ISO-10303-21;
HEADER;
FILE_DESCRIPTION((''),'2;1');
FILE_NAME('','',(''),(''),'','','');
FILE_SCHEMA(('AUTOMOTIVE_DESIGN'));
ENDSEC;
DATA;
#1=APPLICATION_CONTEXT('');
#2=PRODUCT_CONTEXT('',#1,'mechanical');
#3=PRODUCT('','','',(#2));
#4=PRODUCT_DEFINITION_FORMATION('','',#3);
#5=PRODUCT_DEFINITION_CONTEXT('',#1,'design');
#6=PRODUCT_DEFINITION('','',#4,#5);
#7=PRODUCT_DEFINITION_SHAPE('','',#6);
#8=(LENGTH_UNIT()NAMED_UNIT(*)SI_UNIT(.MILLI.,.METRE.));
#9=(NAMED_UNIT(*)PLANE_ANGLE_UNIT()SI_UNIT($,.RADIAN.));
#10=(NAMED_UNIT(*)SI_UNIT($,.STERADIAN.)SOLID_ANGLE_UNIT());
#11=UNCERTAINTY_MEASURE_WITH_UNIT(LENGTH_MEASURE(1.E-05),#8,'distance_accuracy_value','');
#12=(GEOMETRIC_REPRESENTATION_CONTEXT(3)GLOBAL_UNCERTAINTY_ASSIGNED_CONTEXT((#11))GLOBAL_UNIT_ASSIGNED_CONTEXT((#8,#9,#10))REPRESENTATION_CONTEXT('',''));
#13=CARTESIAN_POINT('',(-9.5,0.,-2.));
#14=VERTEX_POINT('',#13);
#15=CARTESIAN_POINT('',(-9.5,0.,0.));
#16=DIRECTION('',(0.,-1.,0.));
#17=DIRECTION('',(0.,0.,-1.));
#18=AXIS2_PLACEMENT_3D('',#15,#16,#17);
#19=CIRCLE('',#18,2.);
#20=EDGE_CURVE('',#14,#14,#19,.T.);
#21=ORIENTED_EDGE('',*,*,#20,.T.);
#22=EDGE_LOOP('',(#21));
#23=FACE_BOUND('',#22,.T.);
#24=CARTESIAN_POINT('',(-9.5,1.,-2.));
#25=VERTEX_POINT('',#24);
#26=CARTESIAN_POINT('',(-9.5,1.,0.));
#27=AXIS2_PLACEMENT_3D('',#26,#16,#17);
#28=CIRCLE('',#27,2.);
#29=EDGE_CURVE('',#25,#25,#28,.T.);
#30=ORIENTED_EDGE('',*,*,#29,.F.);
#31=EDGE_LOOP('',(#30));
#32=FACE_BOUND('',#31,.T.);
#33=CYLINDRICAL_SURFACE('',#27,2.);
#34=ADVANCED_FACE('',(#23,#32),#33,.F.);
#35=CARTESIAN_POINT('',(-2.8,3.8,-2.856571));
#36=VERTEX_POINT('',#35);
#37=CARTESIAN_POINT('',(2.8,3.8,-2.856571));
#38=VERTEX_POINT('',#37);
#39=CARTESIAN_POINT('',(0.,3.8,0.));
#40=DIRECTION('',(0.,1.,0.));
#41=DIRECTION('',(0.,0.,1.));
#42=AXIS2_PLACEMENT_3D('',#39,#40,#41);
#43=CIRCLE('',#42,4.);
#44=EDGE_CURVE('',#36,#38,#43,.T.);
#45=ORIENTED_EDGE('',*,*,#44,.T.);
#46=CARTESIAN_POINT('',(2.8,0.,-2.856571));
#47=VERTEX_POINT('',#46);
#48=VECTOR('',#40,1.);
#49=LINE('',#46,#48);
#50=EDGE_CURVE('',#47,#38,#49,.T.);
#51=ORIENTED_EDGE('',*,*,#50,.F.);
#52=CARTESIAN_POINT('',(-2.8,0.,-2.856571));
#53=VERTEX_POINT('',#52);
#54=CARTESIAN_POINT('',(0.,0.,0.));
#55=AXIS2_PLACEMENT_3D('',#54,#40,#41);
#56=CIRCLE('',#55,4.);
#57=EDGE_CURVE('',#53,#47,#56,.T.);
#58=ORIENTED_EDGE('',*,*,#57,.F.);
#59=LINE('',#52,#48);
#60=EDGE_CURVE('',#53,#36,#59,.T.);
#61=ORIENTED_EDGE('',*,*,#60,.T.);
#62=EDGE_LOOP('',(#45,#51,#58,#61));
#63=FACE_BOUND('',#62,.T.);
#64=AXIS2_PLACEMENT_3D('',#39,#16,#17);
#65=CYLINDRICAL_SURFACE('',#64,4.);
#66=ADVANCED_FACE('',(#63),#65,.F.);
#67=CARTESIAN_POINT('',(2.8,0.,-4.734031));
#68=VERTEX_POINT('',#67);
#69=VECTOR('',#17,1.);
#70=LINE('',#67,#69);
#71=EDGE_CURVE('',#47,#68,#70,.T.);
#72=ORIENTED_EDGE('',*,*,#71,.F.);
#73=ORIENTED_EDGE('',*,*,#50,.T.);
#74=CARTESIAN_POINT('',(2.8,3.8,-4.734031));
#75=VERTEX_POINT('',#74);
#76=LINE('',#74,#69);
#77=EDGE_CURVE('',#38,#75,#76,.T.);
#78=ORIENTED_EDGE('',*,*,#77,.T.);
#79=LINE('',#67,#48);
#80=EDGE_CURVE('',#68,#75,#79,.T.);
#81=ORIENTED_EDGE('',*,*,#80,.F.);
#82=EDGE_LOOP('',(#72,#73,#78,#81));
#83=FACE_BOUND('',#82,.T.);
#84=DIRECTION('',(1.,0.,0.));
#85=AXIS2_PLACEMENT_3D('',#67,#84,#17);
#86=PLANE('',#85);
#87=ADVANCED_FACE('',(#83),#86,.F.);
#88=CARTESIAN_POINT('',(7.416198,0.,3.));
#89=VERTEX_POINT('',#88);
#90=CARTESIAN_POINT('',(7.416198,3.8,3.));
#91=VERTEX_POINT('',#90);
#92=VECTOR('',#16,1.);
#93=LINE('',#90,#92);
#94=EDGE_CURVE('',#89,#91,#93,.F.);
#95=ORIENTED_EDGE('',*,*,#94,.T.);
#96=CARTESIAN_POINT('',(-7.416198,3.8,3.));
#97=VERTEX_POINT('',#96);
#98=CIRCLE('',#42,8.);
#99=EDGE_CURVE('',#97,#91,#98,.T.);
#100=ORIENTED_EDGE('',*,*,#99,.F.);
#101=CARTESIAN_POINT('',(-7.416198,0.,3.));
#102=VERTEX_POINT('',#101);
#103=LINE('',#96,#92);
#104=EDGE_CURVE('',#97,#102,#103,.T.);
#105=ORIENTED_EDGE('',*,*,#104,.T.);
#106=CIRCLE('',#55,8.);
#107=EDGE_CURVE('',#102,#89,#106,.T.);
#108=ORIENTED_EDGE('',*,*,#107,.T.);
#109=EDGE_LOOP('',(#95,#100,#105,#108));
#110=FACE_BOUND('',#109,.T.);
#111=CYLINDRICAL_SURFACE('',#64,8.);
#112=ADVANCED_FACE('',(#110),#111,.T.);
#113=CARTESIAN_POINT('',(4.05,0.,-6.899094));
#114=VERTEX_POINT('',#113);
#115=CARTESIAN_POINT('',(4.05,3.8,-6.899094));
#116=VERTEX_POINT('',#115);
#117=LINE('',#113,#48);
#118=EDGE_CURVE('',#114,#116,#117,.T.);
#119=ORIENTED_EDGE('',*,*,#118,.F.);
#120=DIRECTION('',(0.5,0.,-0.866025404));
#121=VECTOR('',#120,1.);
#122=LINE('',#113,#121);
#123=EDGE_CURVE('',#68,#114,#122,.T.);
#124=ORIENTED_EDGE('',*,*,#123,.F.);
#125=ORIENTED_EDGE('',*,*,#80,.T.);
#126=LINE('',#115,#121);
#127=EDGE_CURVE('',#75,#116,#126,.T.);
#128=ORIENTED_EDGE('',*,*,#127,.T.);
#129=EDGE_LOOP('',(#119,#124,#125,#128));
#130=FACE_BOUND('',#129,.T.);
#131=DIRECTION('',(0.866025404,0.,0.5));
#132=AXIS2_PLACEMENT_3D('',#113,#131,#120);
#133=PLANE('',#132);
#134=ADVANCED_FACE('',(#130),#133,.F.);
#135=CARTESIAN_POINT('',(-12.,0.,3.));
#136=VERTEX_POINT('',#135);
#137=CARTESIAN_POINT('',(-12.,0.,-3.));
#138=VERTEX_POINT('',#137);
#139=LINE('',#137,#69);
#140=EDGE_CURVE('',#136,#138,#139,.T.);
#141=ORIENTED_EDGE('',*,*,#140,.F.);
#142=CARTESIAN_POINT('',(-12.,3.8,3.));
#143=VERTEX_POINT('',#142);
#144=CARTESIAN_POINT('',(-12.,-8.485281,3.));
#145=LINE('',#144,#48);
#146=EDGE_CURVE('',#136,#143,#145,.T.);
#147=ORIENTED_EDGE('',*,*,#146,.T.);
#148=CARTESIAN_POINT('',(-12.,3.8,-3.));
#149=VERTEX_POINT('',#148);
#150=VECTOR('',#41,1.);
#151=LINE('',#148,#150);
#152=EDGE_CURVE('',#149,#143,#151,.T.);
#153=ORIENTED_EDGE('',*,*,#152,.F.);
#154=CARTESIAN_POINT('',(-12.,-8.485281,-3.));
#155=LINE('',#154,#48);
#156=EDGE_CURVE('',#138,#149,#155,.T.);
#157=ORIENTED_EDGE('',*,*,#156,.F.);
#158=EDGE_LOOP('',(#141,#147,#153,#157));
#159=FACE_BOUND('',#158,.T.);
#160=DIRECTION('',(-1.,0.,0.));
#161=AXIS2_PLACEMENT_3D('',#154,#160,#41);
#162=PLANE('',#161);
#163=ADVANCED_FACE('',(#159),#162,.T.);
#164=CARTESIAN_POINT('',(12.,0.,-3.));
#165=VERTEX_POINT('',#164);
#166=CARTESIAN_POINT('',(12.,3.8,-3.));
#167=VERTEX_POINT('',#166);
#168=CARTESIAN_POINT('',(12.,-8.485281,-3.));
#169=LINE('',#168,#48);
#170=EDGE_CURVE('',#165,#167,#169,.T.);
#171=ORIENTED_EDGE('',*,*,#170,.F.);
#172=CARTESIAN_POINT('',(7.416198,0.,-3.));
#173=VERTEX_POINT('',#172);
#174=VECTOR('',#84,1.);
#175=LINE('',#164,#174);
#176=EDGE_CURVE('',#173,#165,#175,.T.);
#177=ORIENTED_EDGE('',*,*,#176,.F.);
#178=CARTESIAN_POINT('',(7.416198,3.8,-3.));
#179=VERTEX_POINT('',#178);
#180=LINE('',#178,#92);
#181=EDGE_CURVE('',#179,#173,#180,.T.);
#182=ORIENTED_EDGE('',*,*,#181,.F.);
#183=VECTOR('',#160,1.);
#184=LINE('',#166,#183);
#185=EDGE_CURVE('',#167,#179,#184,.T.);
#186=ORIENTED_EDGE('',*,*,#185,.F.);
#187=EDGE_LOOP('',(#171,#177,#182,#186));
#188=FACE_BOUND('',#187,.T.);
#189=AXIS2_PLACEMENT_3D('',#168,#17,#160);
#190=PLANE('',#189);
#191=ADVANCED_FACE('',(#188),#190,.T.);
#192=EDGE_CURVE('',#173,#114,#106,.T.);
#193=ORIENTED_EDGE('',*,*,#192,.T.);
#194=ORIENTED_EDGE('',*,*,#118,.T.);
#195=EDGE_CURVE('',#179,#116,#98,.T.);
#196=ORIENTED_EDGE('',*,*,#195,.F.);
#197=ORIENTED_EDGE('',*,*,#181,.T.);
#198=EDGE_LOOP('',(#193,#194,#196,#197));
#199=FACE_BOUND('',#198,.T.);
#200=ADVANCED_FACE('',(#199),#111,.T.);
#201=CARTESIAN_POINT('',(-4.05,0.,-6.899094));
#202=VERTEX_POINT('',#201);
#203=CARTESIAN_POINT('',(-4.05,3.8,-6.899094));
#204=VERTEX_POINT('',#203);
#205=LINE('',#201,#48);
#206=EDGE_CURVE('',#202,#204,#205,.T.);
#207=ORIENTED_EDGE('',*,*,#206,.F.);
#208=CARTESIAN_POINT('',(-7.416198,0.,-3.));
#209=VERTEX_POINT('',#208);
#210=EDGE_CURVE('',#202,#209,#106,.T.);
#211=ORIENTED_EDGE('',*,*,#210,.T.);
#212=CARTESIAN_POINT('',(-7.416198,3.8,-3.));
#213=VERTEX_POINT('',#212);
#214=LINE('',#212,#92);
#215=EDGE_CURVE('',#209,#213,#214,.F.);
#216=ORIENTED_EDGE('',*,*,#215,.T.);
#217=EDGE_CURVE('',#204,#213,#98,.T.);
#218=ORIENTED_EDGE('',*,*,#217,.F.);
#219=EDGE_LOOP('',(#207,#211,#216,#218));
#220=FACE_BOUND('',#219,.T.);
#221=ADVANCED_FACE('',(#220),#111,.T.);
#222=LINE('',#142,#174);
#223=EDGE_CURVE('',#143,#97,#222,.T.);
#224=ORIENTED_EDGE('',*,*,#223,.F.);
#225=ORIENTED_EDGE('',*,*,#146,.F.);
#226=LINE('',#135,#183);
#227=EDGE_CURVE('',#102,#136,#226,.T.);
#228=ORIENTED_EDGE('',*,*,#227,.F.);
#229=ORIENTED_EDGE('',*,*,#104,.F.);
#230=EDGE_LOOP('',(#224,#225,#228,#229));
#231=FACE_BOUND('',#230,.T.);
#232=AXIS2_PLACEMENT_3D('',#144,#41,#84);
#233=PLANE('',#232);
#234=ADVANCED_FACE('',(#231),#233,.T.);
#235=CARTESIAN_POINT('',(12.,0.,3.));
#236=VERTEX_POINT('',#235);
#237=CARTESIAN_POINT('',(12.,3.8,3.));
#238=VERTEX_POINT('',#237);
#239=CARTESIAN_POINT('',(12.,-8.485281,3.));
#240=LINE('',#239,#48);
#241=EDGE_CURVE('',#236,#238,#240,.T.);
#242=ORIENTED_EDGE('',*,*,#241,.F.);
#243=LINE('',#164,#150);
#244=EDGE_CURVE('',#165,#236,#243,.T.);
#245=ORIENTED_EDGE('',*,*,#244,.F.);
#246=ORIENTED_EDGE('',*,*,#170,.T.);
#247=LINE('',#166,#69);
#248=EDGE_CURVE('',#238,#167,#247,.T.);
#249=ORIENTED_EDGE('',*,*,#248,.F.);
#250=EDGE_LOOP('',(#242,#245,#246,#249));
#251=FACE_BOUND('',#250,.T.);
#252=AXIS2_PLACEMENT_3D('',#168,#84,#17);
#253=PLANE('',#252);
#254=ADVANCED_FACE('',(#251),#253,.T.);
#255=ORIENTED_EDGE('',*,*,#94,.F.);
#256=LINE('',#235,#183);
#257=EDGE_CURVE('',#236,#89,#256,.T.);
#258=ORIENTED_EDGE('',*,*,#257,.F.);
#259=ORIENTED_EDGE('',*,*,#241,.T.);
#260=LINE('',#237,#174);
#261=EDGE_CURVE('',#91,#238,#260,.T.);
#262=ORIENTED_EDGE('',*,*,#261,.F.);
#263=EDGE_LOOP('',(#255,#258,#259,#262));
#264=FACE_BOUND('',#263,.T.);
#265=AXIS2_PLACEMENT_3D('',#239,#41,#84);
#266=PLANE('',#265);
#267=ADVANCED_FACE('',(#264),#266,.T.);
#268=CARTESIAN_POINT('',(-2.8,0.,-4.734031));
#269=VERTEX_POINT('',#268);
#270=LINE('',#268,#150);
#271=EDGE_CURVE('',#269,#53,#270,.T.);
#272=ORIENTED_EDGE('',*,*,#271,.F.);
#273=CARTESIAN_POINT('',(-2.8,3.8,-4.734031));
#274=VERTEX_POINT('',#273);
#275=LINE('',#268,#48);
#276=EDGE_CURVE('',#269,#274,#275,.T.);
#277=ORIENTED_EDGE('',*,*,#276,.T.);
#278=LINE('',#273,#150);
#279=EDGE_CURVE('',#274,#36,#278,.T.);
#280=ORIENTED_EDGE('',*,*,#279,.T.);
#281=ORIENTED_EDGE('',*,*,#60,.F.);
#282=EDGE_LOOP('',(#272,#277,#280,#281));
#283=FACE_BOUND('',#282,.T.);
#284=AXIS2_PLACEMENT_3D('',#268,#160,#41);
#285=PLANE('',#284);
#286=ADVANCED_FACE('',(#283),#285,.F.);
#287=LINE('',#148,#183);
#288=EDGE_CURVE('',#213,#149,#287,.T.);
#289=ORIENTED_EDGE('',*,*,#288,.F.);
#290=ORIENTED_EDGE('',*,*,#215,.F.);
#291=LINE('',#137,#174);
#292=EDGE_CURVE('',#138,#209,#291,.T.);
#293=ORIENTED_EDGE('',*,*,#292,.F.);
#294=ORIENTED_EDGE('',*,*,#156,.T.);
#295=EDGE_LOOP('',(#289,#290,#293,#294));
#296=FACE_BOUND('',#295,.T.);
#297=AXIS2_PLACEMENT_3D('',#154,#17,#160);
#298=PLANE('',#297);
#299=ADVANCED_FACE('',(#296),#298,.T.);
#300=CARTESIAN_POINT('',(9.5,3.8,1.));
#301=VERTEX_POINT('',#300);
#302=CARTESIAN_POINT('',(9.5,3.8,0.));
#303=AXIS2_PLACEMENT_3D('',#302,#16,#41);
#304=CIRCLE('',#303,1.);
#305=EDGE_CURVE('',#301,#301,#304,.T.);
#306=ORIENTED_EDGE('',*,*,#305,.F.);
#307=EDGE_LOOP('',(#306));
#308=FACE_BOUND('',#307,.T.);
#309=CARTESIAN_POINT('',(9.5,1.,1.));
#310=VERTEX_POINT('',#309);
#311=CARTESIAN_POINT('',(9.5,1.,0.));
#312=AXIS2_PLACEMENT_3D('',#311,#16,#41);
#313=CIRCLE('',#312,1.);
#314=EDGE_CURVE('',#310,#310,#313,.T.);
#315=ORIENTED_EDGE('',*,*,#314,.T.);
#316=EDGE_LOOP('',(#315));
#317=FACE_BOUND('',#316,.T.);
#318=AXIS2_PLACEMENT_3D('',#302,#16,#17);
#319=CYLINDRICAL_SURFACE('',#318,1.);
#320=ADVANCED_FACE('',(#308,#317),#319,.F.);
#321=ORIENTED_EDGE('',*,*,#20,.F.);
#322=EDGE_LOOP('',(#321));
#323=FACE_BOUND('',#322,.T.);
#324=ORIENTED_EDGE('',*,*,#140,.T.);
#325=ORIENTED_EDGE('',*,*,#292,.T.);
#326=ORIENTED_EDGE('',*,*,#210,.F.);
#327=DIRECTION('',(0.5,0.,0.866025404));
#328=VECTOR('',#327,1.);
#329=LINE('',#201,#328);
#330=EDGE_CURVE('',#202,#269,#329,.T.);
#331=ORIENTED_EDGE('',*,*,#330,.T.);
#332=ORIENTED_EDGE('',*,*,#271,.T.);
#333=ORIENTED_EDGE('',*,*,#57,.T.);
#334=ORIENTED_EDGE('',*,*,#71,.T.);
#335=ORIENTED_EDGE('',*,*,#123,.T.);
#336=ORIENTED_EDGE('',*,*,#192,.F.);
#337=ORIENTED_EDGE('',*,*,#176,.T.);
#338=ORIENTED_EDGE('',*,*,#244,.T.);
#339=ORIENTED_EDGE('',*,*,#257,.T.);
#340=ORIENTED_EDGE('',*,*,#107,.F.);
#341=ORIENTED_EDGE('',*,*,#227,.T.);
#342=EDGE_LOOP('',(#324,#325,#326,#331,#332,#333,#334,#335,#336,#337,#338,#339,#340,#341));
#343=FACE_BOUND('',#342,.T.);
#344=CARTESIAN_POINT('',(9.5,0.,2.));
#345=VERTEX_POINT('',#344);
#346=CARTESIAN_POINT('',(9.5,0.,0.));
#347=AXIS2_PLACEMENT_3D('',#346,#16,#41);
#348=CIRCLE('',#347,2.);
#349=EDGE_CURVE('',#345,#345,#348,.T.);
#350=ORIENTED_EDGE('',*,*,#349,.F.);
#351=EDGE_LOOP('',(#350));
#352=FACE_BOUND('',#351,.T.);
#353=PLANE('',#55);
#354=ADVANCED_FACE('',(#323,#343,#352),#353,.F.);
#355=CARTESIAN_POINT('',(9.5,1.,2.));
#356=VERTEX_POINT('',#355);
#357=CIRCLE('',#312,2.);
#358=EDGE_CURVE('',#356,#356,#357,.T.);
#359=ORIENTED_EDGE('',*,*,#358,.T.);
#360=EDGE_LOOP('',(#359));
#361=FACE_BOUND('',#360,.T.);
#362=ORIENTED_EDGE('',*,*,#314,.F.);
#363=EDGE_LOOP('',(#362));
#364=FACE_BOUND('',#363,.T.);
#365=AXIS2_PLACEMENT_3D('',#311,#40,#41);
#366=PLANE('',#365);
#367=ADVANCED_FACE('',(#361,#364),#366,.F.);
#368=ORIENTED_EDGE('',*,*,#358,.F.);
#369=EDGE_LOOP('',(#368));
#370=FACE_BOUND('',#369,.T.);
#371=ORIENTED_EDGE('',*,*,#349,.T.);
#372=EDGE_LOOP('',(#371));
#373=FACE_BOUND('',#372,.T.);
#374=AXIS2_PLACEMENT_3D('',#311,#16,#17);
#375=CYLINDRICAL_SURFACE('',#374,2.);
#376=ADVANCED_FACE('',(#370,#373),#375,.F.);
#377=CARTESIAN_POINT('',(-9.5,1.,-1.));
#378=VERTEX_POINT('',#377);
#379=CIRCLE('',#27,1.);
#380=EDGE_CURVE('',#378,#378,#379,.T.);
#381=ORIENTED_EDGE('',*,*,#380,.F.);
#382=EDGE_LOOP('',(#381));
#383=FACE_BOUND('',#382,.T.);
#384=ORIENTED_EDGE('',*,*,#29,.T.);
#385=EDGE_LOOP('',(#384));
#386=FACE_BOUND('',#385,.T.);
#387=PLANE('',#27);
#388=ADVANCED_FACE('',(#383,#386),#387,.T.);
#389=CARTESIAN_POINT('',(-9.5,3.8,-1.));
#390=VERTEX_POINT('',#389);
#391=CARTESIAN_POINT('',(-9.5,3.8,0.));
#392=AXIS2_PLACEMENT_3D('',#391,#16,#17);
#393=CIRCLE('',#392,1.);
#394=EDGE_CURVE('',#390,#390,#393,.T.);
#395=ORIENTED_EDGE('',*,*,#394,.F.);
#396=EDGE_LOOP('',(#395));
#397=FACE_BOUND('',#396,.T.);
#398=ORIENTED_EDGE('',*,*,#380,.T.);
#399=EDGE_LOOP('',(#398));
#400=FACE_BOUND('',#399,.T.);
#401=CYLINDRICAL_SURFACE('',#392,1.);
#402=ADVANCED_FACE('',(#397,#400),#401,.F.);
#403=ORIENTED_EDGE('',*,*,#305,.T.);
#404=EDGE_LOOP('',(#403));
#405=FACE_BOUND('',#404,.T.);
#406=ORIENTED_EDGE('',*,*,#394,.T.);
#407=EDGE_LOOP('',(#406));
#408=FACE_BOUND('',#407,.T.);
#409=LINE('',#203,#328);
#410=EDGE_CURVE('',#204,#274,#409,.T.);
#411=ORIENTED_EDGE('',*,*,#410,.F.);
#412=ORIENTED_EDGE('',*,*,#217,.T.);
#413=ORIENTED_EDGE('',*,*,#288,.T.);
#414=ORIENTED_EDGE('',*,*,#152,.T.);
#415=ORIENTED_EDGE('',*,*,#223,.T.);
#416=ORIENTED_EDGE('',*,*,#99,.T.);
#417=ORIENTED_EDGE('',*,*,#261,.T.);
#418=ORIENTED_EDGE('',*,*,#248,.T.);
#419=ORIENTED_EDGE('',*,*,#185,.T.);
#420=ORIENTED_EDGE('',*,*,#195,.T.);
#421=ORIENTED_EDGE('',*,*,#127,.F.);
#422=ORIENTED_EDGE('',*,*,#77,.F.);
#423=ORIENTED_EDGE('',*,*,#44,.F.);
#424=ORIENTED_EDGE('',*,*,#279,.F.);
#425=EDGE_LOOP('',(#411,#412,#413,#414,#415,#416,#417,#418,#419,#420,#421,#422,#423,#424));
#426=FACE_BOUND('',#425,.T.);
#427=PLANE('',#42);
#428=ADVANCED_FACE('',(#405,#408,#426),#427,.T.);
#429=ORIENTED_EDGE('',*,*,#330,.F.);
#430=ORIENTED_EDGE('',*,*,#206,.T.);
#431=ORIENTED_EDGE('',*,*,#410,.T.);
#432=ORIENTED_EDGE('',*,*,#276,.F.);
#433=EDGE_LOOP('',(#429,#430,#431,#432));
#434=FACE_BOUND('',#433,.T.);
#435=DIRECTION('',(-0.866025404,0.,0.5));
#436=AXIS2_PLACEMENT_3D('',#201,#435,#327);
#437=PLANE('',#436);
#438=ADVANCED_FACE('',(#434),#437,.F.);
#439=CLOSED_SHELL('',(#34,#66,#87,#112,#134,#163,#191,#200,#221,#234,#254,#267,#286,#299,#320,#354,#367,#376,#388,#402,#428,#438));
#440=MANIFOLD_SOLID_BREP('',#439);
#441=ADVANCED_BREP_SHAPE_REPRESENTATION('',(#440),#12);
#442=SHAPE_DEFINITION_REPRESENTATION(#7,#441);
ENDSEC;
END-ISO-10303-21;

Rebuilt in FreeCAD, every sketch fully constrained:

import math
import FreeCAD as App
import Part
import Sketcher
from FreeCAD import Vector
Q = App.Units.Quantity


def add_polygon(sketch, points):
    """Adds a closed chain of lines whose ends are joined by coincident constraints."""
    first, n = sketch.GeometryCount, len(points)
    for a, b in zip(points, points[1:] + points[:1]):
        sketch.addGeometry(Part.LineSegment(App.Vector(*a, 0), App.Vector(*b, 0)), False)
    for i in range(n):
        sketch.addConstraint(Sketcher.Constraint("Coincident", first + i, 2, first + (i + 1) % n, 1))

doc = App.newDocument("Part")
body = doc.addObject("PartDesign::Body", "Body")

sketch1 = doc.addObject("Sketcher::SketchObject", "Sketch")
body.addObject(sketch1)
sketch1.AttachmentSupport = (doc.XZ_Plane, [""])
sketch1.MapMode = "FlatFace"
sketch1.addGeometry(Part.Circle(Vector(0, 0, 0), Vector(0, 0, 1), 8), False)
sketch1.addGeometry(Part.Circle(Vector(0, 0, 0), Vector(0, 0, 1), 4), False)
sketch1.addConstraint(Sketcher.Constraint("Coincident", 0, 3, -1, 1))
sketch1.addConstraint(Sketcher.Constraint("Coincident", 1, 3, -1, 1))
sketch1.addConstraint(Sketcher.Constraint("Diameter", 0, 16.0))
sketch1.addConstraint(Sketcher.Constraint("Diameter", 1, 8.0))
pad1 = doc.addObject("PartDesign::Pad", "Pad")
body.addObject(pad1)
pad1.Profile = sketch1
pad1.Length = 3.8
pad1.Reversed = True

sketch2 = doc.addObject("Sketcher::SketchObject", "Sketch001")
body.addObject(sketch2)
sketch2.AttachmentSupport = (doc.XZ_Plane, [""])
sketch2.MapMode = "FlatFace"
sketch2.AttachmentOffset = App.Placement(Vector(0, 0, -3.8), App.Rotation())
add_polygon(sketch2, [(-12, -3), (-12, 3), (-6, 3), (-6, -3)])
add_polygon(sketch2, [(6, -3), (6, 3), (12, 3), (12, -3)])
sketch2.addConstraint(Sketcher.Constraint("Vertical", 0))
sketch2.addConstraint(Sketcher.Constraint("Horizontal", 1))
sketch2.addConstraint(Sketcher.Constraint("Vertical", 2))
sketch2.addConstraint(Sketcher.Constraint("Horizontal", 3))
sketch2.addConstraint(Sketcher.Constraint("Vertical", 4))
sketch2.addConstraint(Sketcher.Constraint("Horizontal", 5))
sketch2.addConstraint(Sketcher.Constraint("Vertical", 6))
sketch2.addConstraint(Sketcher.Constraint("Horizontal", 7))
sketch2.addConstraint(Sketcher.Constraint("Symmetric", 2, 2, 4, 2, -1, 1))
sketch2.addConstraint(Sketcher.Constraint("Symmetric", 0, 2, 6, 2, -1, 1))
sketch2.addConstraint(Sketcher.Constraint("Horizontal", 1, 2, 4, 2))
sketch2.addConstraint(Sketcher.Constraint("Equal", 7, 0))
sketch2.addConstraint(Sketcher.Constraint("DistanceX", 1, 1, 1, 2, 6.0))
sketch2.addConstraint(Sketcher.Constraint("DistanceX", 0, 2, -1, 1, 12.0))
pad2 = doc.addObject("PartDesign::Pad", "Pad001")
body.addObject(pad2)
pad2.Profile = sketch2
pad2.Length = 3.8

sketch3 = doc.addObject("Sketcher::SketchObject", "Sketch002")
body.addObject(sketch3)
sketch3.AttachmentSupport = (doc.XZ_Plane, [""])
sketch3.MapMode = "FlatFace"
sketch3.addGeometry(Part.Circle(Vector(-9.5, 0, 0), Vector(0, 0, 1), 2), False)
sketch3.addGeometry(Part.Circle(Vector(9.5, 0, 0), Vector(0, 0, 1), 2), False)
sketch3.addConstraint(Sketcher.Constraint("Equal", 0, 1))
sketch3.addConstraint(Sketcher.Constraint("Symmetric", 0, 3, 1, 3, -1, 1))
sketch3.addConstraint(Sketcher.Constraint("PointOnObject", 0, 3, -1))
sketch3.addConstraint(Sketcher.Constraint("Diameter", 0, 4.0))
sketch3.addConstraint(Sketcher.Constraint("DistanceX", 0, 3, 1, 3, 19.0))
pocket1 = doc.addObject("PartDesign::Pocket", "Pocket")
body.addObject(pocket1)
pocket1.Profile = sketch3
pocket1.Length = 1

sketch4 = doc.addObject("Sketcher::SketchObject", "Sketch003")
body.addObject(sketch4)
sketch4.AttachmentSupport = (doc.XZ_Plane, [""])
sketch4.MapMode = "FlatFace"
sketch4.AttachmentOffset = App.Placement(Vector(0, 0, -1), App.Rotation())
sketch4.addGeometry(Part.Circle(Vector(-9.5, 0, 0), Vector(0, 0, 1), 1), False)
sketch4.addGeometry(Part.Circle(Vector(9.5, 0, 0), Vector(0, 0, 1), 1), False)
sketch4.addConstraint(Sketcher.Constraint("Equal", 0, 1))
sketch4.addConstraint(Sketcher.Constraint("Symmetric", 0, 3, 1, 3, -1, 1))
sketch4.addConstraint(Sketcher.Constraint("PointOnObject", 0, 3, -1))
sketch4.addConstraint(Sketcher.Constraint("Diameter", 0, 2.0))
sketch4.addConstraint(Sketcher.Constraint("DistanceX", 0, 3, 1, 3, 19.0))
pocket2 = doc.addObject("PartDesign::Pocket", "Pocket001")
body.addObject(pocket2)
pocket2.Profile = sketch4
pocket2.Type = "ThroughAll"

sketch5 = doc.addObject("Sketcher::SketchObject", "Sketch004")
body.addObject(sketch5)
sketch5.AttachmentSupport = (doc.XZ_Plane, [""])
sketch5.MapMode = "FlatFace"
sketch5.AttachmentOffset = App.Placement(Vector(0, 0, -3.8), App.Rotation())
sketch5.addGeometry(Part.LineSegment(Vector(-4, -6.9, 0), Vector(-2.8, -4.7, 0)), False)
sketch5.addGeometry(Part.LineSegment(Vector(-2.8, -4.7, 0), Vector(-2.8, -2.9, 0)), False)
sketch5.addGeometry(Part.ArcOfCircle(Part.Circle(Vector(0, 0, 0), Vector(0, 0, 1), 4), math.radians(-134), math.radians(-46)), False)
sketch5.addGeometry(Part.LineSegment(Vector(2.8, -2.9, 0), Vector(2.8, -4.7, 0)), False)
sketch5.addGeometry(Part.LineSegment(Vector(2.8, -4.7, 0), Vector(4, -6.9, 0)), False)
sketch5.addGeometry(Part.ArcOfCircle(Part.Circle(Vector(0, 0, 0), Vector(0, 0, 1), 8), math.radians(-120), math.radians(-60)), False)
sketch5.addConstraint(Sketcher.Constraint("Coincident", 0, 2, 1, 1))
sketch5.addConstraint(Sketcher.Constraint("Coincident", 1, 2, 2, 1))
sketch5.addConstraint(Sketcher.Constraint("Coincident", 2, 2, 3, 1))
sketch5.addConstraint(Sketcher.Constraint("Coincident", 3, 2, 4, 1))
sketch5.addConstraint(Sketcher.Constraint("Coincident", 4, 2, 5, 2))
sketch5.addConstraint(Sketcher.Constraint("Coincident", 5, 1, 0, 1))
sketch5.addConstraint(Sketcher.Constraint("Vertical", 1))
sketch5.addConstraint(Sketcher.Constraint("Vertical", 3))
sketch5.addConstraint(Sketcher.Constraint("Coincident", 2, 3, -1, 1))
sketch5.addConstraint(Sketcher.Constraint("Coincident", 5, 3, -1, 1))
sketch5.addConstraint(Sketcher.Constraint("Symmetric", 0, 2, 3, 2, -2))
sketch5.addConstraint(Sketcher.Constraint("Horizontal", 4, 2, 5, 1))
sketch5.addConstraint(Sketcher.Constraint("Radius", 2, 4.0))
sketch5.addConstraint(Sketcher.Constraint("Radius", 5, 8.0))
sketch5.addConstraint(Sketcher.Constraint("Angle", 0, Q("60 deg")))
sketch5.addConstraint(Sketcher.Constraint("Distance", 0, 2.5))
sketch5.addConstraint(Sketcher.Constraint("DistanceX", 0, 2, -1, 1, 2.8))
pocket3 = doc.addObject("PartDesign::Pocket", "Pocket002")
body.addObject(pocket3)
pocket3.Profile = sketch5
pocket3.Type = "ThroughAll"
pocket3.Reversed = True

doc.recompute()
